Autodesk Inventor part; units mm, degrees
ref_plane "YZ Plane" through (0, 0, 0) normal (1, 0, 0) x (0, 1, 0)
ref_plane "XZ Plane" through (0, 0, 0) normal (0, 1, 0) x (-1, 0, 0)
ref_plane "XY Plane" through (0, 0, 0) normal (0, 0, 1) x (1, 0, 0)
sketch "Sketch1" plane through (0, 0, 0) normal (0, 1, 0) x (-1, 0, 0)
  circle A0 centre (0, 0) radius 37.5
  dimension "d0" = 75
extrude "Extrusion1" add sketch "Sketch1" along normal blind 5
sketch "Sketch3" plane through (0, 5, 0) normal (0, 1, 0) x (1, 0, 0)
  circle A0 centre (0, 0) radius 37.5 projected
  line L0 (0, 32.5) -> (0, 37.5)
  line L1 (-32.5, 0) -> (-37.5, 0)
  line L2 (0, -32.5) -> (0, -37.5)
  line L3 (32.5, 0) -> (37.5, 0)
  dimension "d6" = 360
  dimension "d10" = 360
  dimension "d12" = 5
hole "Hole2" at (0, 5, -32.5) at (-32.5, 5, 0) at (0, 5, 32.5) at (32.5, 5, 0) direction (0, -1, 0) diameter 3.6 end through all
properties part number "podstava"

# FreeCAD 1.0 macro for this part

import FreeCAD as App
import Part
import Sketcher

V = App.Vector

doc = App.newDocument("Part")
body = doc.addObject("PartDesign::Body", "Body")

# Sketch on XZ plane
sketch1 = body.newObject("Sketcher::SketchObject", "Sketch")
sketch1.AttachmentSupport = (doc.getObject("XZ_Plane"), [""])
sketch1.MapMode = "FlatFace"
sketch1.addGeometry(Part.Circle(V(0, 0, 0), V(0, 0, 1), 37.5), False)
sketch1.addConstraint(Sketcher.Constraint("Coincident", 0, 3, -1, 1))
sketch1.addConstraint(Sketcher.Constraint("Diameter", 0, 75.0))
pad1 = body.newObject("PartDesign::Pad", "Pad")
pad1.Profile = sketch1
pad1.Length = 5
pad1.Reversed = True

# Sketch on XZ plane
sketch2 = body.newObject("Sketcher::SketchObject", "Sketch001")
sketch2.AttachmentSupport = (doc.getObject("XZ_Plane"), [""])
sketch2.MapMode = "FlatFace"
sketch2.AttachmentOffset = App.Placement(V(0, 0, -5), App.Rotation())
sketch2.addGeometry(Part.Circle(V(0, -32.5, 0), V(0, 0, 1), 1.8), False)
sketch2.addGeometry(Part.Circle(V(-32.5, 0, 0), V(0, 0, 1), 1.8), False)
sketch2.addGeometry(Part.Circle(V(0, 32.5, 0), V(0, 0, 1), 1.8), False)
sketch2.addGeometry(Part.Circle(V(32.5, 0, 0), V(0, 0, 1), 1.8), False)
sketch2.addConstraint(Sketcher.Constraint("Equal", 0, 1))
sketch2.addConstraint(Sketcher.Constraint("Equal", 1, 2))
sketch2.addConstraint(Sketcher.Constraint("Equal", 2, 3))
sketch2.addConstraint(Sketcher.Constraint("Symmetric", 0, 3, 2, 3, -1, 1))
sketch2.addConstraint(Sketcher.Constraint("Symmetric", 1, 3, 3, 3, -1, 1))
sketch2.addConstraint(Sketcher.Constraint("PointOnObject", 0, 3, -2))
sketch2.addConstraint(Sketcher.Constraint("PointOnObject", 1, 3, -1))
sketch2.addConstraint(Sketcher.Constraint("Diameter", 0, 3.6))
sketch2.addConstraint(Sketcher.Constraint("DistanceY", 0, 3, 2, 3, 65.0))
sketch2.addConstraint(Sketcher.Constraint("DistanceX", 1, 3, 3, 3, 65.0))
doc.recompute()
hole = body.newObject("PartDesign::Hole", "Hole")
hole.Profile = sketch2
hole.ThreadType = "None"
hole.Diameter = 3.6
hole.DepthType = "ThroughAll"
hole.Reversed = True

doc.recompute()
